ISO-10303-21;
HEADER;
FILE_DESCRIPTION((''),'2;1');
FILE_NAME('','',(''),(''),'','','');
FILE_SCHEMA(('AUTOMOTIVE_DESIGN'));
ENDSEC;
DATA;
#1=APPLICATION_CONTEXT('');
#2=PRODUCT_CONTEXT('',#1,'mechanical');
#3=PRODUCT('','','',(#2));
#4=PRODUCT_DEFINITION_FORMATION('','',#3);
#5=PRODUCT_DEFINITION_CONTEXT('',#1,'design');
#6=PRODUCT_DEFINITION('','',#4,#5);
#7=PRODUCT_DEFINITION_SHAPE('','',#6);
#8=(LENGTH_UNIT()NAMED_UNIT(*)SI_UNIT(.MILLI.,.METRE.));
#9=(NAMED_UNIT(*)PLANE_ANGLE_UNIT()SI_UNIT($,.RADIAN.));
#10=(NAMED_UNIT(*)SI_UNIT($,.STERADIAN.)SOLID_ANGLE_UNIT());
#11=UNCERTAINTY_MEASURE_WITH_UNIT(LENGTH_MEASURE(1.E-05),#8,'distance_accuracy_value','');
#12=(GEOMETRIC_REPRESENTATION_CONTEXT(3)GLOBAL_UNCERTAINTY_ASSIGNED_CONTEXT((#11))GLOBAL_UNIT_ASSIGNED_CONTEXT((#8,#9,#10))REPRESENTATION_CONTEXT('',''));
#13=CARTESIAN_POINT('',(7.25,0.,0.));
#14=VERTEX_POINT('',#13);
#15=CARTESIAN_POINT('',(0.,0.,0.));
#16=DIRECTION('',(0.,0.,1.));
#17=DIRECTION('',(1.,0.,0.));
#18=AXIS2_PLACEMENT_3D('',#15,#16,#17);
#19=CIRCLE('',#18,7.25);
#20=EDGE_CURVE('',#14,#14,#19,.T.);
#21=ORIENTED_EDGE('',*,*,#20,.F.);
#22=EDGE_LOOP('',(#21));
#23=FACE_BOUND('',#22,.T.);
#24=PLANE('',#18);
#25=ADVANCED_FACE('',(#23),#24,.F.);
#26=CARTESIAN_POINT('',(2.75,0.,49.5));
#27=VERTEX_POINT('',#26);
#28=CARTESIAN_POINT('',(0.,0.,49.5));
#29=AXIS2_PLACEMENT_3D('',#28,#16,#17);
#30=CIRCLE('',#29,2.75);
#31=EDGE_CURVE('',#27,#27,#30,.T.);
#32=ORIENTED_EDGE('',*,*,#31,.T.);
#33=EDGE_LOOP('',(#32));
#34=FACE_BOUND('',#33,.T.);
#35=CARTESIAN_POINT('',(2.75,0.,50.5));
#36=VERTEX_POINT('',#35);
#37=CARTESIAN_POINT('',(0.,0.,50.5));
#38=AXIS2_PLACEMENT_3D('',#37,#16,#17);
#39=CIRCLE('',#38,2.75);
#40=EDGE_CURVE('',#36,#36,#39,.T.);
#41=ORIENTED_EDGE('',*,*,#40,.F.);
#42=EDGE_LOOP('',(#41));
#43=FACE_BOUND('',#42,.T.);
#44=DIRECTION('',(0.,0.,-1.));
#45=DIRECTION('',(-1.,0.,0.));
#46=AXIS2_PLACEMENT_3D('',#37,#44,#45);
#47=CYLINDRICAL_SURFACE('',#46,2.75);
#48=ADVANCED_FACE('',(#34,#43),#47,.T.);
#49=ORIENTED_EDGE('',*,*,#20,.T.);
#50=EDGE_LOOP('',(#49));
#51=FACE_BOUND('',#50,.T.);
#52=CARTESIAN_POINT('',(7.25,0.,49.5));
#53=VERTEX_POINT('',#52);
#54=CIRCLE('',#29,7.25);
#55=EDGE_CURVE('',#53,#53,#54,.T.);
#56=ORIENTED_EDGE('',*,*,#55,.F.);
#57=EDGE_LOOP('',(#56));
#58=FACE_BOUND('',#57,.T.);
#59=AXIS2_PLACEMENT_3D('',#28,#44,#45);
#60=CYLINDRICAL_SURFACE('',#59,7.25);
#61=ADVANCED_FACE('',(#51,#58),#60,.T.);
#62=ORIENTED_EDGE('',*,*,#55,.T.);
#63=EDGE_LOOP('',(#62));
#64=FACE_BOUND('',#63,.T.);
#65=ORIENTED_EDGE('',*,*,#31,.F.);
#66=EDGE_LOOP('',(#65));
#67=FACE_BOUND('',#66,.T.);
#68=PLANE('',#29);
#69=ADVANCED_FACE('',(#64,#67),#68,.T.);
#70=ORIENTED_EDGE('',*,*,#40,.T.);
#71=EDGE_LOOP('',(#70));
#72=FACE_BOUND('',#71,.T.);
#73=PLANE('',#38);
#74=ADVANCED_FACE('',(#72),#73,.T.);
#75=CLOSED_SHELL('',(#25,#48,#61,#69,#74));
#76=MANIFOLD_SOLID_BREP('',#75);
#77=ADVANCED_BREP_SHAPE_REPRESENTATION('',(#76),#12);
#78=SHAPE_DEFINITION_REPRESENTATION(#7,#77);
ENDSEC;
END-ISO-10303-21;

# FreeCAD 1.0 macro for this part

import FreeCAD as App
import Part
import Sketcher
Q = App.Units.Quantity

doc = App.newDocument("Part")
body = doc.addObject("PartDesign::Body", "Body")

# Sketch on XY plane
sketch1 = doc.addObject("Sketcher::SketchObject", "Sketch")
body.addObject(sketch1)
sketch1.AttachmentSupport = (doc.XY_Plane, [""])
sketch1.MapMode = "FlatFace"
sketch1.addGeometry(Part.Circle(App.Vector(0, 0, 0), App.Vector(0, 0, 1), 7.2), False)
sketch1.addGeometry(Part.Circle(App.Vector(0, 0, 0), App.Vector(0, 0, 1), 2.8), False)
sketch1.addConstraint(Sketcher.Constraint("Coincident", 0, 3, -1, 1))
sketch1.addConstraint(Sketcher.Constraint("Coincident", 1, 3, -1, 1))
sketch1.addConstraint(Sketcher.Constraint("Diameter", 0, Q("14.5 mm")))
sketch1.addConstraint(Sketcher.Constraint("Diameter", 1, Q("5.5 mm")))
pad1 = doc.addObject("PartDesign::Pad", "Pad")
body.addObject(pad1)
pad1.Profile = sketch1
pad1.Length = 49.5

# Sketch on XY plane
sketch2 = doc.addObject("Sketcher::SketchObject", "Sketch001")
body.addObject(sketch2)
sketch2.AttachmentSupport = (doc.XY_Plane, [""])
sketch2.MapMode = "FlatFace"
sketch2.addGeometry(Part.Circle(App.Vector(0, 0, 0), App.Vector(0, 0, 1), 2.8), False)
sketch2.addConstraint(Sketcher.Constraint("Coincident", 0, 3, -1, 1))
sketch2.addConstraint(Sketcher.Constraint("Diameter", 0, Q("5.5 mm")))
pad2 = doc.addObject("PartDesign::Pad", "Pad001")
body.addObject(pad2)
pad2.Profile = sketch2
pad2.Length = 50.5

doc.recompute()
